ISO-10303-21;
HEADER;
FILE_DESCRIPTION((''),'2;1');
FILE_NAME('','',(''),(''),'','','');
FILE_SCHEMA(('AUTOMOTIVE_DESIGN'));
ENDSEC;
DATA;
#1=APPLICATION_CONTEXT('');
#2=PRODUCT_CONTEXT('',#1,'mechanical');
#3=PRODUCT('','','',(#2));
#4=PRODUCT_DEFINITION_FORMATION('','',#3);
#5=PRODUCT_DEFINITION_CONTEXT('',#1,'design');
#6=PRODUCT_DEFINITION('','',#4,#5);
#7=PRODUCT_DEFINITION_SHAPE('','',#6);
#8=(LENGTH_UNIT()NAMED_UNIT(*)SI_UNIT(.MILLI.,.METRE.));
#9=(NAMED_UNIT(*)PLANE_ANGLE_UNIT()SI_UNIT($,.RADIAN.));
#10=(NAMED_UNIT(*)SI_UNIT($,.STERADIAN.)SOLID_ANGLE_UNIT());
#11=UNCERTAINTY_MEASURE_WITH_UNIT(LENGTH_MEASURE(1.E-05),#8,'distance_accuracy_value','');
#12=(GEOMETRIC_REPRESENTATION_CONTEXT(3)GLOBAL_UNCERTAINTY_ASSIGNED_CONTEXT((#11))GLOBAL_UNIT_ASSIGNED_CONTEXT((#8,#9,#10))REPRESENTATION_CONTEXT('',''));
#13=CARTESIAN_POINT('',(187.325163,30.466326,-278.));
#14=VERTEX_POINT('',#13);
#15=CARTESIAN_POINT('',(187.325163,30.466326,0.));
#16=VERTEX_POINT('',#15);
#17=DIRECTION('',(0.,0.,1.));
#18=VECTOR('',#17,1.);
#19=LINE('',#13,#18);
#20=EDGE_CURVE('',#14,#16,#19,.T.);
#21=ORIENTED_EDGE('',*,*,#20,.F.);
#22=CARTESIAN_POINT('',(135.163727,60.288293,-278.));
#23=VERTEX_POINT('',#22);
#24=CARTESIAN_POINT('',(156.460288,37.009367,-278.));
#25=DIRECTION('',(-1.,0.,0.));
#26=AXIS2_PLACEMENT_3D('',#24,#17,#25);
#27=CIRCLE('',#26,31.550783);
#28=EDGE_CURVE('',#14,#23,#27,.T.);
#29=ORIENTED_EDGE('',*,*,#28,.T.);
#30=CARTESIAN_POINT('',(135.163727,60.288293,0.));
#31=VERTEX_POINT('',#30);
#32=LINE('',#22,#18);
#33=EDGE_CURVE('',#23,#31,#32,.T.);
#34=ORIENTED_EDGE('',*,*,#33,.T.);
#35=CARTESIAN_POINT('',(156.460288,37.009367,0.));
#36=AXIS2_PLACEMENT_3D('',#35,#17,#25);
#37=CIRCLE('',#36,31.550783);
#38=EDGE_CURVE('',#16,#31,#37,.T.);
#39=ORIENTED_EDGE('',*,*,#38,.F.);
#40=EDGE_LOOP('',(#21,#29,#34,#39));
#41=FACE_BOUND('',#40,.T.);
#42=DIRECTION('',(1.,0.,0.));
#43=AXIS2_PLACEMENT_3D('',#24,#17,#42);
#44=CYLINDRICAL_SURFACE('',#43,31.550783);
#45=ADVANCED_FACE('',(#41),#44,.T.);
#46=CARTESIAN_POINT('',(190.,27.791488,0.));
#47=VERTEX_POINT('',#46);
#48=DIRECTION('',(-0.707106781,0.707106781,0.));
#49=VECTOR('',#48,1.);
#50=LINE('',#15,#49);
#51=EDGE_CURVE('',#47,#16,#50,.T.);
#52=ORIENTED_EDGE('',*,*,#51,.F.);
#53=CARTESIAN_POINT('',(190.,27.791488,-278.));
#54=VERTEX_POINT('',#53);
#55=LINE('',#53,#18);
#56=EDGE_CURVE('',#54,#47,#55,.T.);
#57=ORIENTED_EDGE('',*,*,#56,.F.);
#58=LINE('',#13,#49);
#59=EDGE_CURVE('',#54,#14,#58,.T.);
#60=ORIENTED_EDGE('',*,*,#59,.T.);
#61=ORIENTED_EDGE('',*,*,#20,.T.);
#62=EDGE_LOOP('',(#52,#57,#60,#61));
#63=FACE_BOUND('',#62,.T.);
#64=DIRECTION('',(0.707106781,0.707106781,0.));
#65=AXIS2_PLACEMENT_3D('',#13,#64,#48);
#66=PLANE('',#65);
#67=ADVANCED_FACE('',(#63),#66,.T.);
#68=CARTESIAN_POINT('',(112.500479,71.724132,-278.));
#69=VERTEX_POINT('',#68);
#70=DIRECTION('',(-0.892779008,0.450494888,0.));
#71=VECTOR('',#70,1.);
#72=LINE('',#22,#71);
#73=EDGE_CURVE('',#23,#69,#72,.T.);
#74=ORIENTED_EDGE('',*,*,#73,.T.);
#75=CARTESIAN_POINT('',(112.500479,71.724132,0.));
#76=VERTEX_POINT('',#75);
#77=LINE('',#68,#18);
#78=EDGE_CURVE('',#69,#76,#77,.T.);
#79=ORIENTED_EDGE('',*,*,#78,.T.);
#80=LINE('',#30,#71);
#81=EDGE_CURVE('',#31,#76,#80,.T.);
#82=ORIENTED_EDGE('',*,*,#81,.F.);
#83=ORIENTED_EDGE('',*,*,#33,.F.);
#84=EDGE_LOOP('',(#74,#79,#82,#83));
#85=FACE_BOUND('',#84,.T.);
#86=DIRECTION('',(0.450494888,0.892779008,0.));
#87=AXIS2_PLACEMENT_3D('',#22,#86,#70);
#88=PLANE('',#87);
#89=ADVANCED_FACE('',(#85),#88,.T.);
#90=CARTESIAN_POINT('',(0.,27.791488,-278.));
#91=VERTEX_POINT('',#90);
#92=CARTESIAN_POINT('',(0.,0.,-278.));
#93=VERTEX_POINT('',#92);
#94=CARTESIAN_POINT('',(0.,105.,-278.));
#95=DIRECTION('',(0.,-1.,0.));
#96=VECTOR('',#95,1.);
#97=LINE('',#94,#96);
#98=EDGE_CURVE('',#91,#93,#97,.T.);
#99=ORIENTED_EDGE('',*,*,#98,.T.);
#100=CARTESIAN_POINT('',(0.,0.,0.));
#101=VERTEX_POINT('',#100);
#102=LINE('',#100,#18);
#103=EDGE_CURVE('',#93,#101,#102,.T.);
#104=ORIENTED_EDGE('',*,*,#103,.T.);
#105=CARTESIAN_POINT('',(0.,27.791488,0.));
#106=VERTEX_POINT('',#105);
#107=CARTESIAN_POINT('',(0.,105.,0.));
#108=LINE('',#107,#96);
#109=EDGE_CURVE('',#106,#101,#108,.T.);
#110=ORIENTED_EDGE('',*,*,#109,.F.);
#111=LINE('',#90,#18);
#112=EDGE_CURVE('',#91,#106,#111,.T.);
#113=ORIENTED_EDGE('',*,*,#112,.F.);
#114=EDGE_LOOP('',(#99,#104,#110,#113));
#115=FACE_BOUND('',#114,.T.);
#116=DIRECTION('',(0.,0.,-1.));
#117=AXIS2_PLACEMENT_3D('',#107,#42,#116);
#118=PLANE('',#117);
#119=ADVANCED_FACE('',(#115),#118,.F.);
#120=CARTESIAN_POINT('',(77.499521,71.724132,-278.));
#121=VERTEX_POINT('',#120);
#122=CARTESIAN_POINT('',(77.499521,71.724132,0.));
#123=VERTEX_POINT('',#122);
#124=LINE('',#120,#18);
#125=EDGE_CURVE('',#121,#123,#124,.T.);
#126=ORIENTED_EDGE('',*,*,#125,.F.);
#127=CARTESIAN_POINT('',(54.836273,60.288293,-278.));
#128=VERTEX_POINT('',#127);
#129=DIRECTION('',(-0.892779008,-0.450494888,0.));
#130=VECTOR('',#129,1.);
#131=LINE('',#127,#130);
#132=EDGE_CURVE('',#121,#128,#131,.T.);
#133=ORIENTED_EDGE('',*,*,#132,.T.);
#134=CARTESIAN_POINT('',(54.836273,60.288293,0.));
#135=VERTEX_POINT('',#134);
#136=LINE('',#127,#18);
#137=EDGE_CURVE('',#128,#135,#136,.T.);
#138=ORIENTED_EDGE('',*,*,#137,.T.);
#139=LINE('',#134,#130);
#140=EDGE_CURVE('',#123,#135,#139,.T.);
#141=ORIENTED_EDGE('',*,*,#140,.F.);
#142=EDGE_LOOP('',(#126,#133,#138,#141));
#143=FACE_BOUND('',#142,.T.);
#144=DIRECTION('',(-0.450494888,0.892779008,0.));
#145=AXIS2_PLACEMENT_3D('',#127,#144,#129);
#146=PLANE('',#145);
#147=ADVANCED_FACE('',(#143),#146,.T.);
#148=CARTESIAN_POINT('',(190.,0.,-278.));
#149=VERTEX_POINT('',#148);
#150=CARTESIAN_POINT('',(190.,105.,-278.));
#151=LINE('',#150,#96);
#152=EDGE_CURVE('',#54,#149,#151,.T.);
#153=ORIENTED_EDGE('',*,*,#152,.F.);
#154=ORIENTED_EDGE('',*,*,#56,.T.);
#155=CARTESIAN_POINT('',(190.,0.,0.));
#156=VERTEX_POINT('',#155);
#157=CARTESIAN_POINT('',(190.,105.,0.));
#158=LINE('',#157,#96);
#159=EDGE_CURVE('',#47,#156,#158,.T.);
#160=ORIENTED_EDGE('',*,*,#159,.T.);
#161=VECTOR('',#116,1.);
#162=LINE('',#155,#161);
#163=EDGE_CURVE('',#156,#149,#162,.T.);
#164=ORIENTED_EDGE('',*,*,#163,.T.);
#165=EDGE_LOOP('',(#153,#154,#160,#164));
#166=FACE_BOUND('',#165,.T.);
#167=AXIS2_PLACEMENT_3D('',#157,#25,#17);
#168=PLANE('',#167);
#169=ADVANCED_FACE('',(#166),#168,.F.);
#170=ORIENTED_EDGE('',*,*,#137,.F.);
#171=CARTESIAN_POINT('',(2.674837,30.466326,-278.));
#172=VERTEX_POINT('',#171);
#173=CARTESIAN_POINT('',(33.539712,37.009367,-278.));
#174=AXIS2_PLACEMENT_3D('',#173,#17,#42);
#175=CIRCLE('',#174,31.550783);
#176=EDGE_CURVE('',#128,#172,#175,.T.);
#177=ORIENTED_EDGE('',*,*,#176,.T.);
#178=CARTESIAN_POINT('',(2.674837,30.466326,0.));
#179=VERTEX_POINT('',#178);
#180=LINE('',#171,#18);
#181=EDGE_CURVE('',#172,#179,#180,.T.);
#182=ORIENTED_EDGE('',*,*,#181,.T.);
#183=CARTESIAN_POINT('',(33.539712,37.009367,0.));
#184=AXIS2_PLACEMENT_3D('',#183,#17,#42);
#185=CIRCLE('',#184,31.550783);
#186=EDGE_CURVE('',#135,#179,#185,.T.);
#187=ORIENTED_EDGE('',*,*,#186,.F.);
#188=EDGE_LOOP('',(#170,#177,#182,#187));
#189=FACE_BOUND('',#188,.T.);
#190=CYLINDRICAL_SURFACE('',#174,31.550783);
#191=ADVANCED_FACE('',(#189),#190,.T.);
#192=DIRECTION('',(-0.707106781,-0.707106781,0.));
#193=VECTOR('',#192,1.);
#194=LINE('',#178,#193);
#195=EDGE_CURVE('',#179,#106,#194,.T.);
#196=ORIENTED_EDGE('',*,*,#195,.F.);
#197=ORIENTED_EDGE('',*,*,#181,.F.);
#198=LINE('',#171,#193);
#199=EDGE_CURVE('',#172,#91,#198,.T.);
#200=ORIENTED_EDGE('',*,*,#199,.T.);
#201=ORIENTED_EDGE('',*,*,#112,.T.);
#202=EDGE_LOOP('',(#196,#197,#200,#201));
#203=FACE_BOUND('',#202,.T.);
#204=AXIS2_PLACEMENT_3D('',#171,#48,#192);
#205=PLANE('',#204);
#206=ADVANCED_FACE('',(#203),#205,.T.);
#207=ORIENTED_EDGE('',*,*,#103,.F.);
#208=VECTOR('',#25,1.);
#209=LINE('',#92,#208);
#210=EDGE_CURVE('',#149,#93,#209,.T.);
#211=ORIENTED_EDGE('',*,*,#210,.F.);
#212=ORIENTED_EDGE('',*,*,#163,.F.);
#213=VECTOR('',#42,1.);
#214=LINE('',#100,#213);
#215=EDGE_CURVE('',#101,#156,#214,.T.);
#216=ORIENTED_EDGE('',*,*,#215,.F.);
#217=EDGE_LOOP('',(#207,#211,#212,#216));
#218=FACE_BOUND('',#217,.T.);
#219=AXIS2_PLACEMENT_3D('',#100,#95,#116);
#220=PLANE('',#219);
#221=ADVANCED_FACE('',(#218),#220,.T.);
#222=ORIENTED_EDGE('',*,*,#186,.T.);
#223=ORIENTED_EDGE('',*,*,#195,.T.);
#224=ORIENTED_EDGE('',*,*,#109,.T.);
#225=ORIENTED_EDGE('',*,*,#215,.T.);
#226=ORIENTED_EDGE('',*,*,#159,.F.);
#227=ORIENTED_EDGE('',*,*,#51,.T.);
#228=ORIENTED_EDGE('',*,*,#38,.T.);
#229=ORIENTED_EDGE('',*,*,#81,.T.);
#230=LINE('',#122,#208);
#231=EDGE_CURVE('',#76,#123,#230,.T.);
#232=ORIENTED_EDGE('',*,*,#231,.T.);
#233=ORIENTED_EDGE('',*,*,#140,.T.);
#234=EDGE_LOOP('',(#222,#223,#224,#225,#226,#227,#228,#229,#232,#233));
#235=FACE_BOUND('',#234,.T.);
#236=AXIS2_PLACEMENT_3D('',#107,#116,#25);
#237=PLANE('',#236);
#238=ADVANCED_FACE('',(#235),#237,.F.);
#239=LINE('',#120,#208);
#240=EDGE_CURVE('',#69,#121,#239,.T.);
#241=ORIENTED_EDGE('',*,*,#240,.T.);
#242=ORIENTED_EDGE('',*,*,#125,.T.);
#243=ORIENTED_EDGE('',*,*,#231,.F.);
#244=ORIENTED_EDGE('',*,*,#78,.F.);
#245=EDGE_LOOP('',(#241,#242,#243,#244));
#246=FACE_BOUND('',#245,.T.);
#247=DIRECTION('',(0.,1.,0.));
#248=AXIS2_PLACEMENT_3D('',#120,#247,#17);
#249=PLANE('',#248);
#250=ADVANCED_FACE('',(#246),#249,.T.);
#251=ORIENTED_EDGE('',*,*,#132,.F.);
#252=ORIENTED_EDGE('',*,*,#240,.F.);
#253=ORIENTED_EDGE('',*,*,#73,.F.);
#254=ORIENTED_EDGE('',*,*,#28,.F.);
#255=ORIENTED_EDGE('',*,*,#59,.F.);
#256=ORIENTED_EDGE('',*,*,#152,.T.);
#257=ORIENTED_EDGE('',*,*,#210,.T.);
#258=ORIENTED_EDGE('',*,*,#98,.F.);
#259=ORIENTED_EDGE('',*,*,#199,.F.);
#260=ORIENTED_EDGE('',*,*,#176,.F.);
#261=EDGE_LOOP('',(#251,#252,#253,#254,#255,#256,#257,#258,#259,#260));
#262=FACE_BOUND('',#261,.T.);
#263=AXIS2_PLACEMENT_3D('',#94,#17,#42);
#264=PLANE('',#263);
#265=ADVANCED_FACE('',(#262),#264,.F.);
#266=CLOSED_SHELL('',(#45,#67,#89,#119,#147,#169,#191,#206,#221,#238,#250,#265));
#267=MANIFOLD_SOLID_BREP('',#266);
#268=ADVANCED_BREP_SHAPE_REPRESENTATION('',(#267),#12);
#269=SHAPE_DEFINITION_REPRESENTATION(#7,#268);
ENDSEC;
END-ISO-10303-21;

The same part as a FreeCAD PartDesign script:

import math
import FreeCAD as App
import Part
import Sketcher
from FreeCAD import Vector

doc = App.newDocument("Part")
body = doc.addObject("PartDesign::Body", "Body")

# Sketch on XZ plane
sketch1 = body.newObject("Sketcher::SketchObject", "Sketch")
sketch1.AttachmentSupport = (doc.getObject("XZ_Plane"), [""])
sketch1.MapMode = "FlatFace"
sketch1.addGeometry([
    Part.LineSegment(Vector(0, -278, 0), Vector(0, 0, 0)),
    Part.LineSegment(Vector(0, 0, 0), Vector(190, 0, 0)),
    Part.LineSegment(Vector(190, 0, 0), Vector(190, -278, 0)),
    Part.LineSegment(Vector(190, -278, 0), Vector(0, -278, 0)),
], False)
sketch1.addConstraint([
    Sketcher.Constraint("Coincident", 0, 2, 1, 1),
    Sketcher.Constraint("Coincident", 1, 2, 2, 1),
    Sketcher.Constraint("Coincident", 2, 2, 3, 1),
    Sketcher.Constraint("Coincident", 3, 2, 0, 1),
    Sketcher.Constraint("Vertical", 0),
    Sketcher.Constraint("Horizontal", 1),
    Sketcher.Constraint("Vertical", 2),
    Sketcher.Constraint("Horizontal", 3),
    Sketcher.Constraint("Coincident", 0, 2, -1, 1),
    Sketcher.Constraint("DistanceX", 1, 1, 1, 2, 190.0),
    Sketcher.Constraint("DistanceY", 0, 1, 0, 2, 278.0),
])
pad1 = body.newObject("PartDesign::Pad", "Pad")
pad1.Profile = sketch1
pad1.Length = 105
pad1.Reversed = True

# Sketch on XY plane
sketch2 = body.newObject("Sketcher::SketchObject", "Sketch001")
sketch2.AttachmentSupport = (doc.getObject("XY_Plane"), [""])
sketch2.MapMode = "FlatFace"
sketch2.addGeometry([
    Part.LineSegment(Vector(-36.3, 141.3, 0), Vector(-36.3, -36.3, 0)),  # 0
    Part.LineSegment(Vector(-36.3, -36.3, 0), Vector(226.3, -36.3, 0)),  # 1
    Part.LineSegment(Vector(226.3, -36.3, 0), Vector(226.3, 141.3, 0)),  # 2
    Part.LineSegment(Vector(226.3, 141.3, 0), Vector(-36.3, 141.3, 0)),  # 3
    Part.ArcOfCircle(Part.Circle(Vector(33.5, 37, 0), Vector(0, 0, 1), 31.6), math.radians(48), math.radians(192)),  # 4
    Part.LineSegment(Vector(54.8, 60.3, 0), Vector(77.5, 71.7, 0)),  # 5
    Part.LineSegment(Vector(77.5, 71.7, 0), Vector(112.5, 71.7, 0)),  # 6
    Part.LineSegment(Vector(112.5, 71.7, 0), Vector(135.2, 60.3, 0)),  # 7
    Part.ArcOfCircle(Part.Circle(Vector(156.5, 37, 0), Vector(0, 0, 1), 31.6), math.radians(-12), math.radians(132)),  # 8
    Part.LineSegment(Vector(187.3, 30.5, 0), Vector(190, 27.8, 0)),  # 9
    Part.LineSegment(Vector(190, 27.8, 0), Vector(190, 0, 0)),  # 10
    Part.LineSegment(Vector(190, 0, 0), Vector(0, 0, 0)),  # 11
    Part.LineSegment(Vector(0, 0, 0), Vector(0, 27.8, 0)),  # 12
    Part.LineSegment(Vector(0, 27.8, 0), Vector(2.7, 30.5, 0)),  # 13
], False)
sketch2.addConstraint([
    Sketcher.Constraint("Coincident", 0, 2, 1, 1),
    Sketcher.Constraint("Coincident", 1, 2, 2, 1),
    Sketcher.Constraint("Coincident", 2, 2, 3, 1),
    Sketcher.Constraint("Coincident", 3, 2, 0, 1),
    Sketcher.Constraint("Coincident", 4, 1, 5, 1),
    Sketcher.Constraint("Coincident", 5, 2, 6, 1),
    Sketcher.Constraint("Coincident", 6, 2, 7, 1),
    Sketcher.Constraint("Coincident", 7, 2, 8, 2),
    Sketcher.Constraint("Coincident", 8, 1, 9, 1),
    Sketcher.Constraint("Coincident", 9, 2, 10, 1),
    Sketcher.Constraint("Coincident", 10, 2, 11, 1),
    Sketcher.Constraint("Coincident", 11, 2, 12, 1),
    Sketcher.Constraint("Coincident", 12, 2, 13, 1),
    Sketcher.Constraint("Coincident", 13, 2, 4, 2),
    Sketcher.Constraint("Vertical", 0),
    Sketcher.Constraint("Horizontal", 1),
    Sketcher.Constraint("Vertical", 2),
    Sketcher.Constraint("Horizontal", 3),
    Sketcher.Constraint("Horizontal", 6),
    Sketcher.Constraint("Vertical", 10),
    Sketcher.Constraint("Horizontal", 11),
    Sketcher.Constraint("Vertical", 12),
    Sketcher.Constraint("Coincident", 11, 2, -1, 1),
    Sketcher.Constraint("Equal", 4, 8),
    Sketcher.Constraint("Perpendicular", 9, 13),
    Sketcher.Constraint("Horizontal", 4, 3, 8, 3),
    Sketcher.Constraint("Horizontal", 4, 1, 7, 2),
    Sketcher.Constraint("Horizontal", 9, 2, 12, 2),
    Sketcher.Constraint("Horizontal", 8, 1, 13, 2),
    Sketcher.Constraint("Equal", 5, 7),
    Sketcher.Constraint("Equal", 9, 13),
    Sketcher.Constraint("DistanceX", 11, 2, 11, 1, 190.0),
    Sketcher.Constraint("DistanceX", 1, 1, 1, 2, 262.544),
    Sketcher.Constraint("DistanceY", 0, 2, 0, 1, 177.544),
    Sketcher.Constraint("DistanceX", 0, 2, -1, 1, 36.272),
    Sketcher.Constraint("DistanceY", 0, 2, -1, 1, 36.272),
    Sketcher.Constraint("Radius", 4, 31.550783),
    Sketcher.Constraint("DistanceX", 6, 1, 6, 2, 35.000959),
    Sketcher.Constraint("DistanceY", 10, 2, 10, 1, 27.791488),
    Sketcher.Constraint("Distance", 5, 25.385059),
    Sketcher.Constraint("Distance", 9, 3.782791),
    Sketcher.Constraint("DistanceX", 4, 3, 4, 1, 21.296561),
    Sketcher.Constraint("DistanceY", 4, 1, 5, 2, 11.435839),
])
pocket1 = body.newObject("PartDesign::Pocket", "Pocket")
pocket1.Profile = sketch2
pocket1.Type = "ThroughAll"

doc.recompute()
